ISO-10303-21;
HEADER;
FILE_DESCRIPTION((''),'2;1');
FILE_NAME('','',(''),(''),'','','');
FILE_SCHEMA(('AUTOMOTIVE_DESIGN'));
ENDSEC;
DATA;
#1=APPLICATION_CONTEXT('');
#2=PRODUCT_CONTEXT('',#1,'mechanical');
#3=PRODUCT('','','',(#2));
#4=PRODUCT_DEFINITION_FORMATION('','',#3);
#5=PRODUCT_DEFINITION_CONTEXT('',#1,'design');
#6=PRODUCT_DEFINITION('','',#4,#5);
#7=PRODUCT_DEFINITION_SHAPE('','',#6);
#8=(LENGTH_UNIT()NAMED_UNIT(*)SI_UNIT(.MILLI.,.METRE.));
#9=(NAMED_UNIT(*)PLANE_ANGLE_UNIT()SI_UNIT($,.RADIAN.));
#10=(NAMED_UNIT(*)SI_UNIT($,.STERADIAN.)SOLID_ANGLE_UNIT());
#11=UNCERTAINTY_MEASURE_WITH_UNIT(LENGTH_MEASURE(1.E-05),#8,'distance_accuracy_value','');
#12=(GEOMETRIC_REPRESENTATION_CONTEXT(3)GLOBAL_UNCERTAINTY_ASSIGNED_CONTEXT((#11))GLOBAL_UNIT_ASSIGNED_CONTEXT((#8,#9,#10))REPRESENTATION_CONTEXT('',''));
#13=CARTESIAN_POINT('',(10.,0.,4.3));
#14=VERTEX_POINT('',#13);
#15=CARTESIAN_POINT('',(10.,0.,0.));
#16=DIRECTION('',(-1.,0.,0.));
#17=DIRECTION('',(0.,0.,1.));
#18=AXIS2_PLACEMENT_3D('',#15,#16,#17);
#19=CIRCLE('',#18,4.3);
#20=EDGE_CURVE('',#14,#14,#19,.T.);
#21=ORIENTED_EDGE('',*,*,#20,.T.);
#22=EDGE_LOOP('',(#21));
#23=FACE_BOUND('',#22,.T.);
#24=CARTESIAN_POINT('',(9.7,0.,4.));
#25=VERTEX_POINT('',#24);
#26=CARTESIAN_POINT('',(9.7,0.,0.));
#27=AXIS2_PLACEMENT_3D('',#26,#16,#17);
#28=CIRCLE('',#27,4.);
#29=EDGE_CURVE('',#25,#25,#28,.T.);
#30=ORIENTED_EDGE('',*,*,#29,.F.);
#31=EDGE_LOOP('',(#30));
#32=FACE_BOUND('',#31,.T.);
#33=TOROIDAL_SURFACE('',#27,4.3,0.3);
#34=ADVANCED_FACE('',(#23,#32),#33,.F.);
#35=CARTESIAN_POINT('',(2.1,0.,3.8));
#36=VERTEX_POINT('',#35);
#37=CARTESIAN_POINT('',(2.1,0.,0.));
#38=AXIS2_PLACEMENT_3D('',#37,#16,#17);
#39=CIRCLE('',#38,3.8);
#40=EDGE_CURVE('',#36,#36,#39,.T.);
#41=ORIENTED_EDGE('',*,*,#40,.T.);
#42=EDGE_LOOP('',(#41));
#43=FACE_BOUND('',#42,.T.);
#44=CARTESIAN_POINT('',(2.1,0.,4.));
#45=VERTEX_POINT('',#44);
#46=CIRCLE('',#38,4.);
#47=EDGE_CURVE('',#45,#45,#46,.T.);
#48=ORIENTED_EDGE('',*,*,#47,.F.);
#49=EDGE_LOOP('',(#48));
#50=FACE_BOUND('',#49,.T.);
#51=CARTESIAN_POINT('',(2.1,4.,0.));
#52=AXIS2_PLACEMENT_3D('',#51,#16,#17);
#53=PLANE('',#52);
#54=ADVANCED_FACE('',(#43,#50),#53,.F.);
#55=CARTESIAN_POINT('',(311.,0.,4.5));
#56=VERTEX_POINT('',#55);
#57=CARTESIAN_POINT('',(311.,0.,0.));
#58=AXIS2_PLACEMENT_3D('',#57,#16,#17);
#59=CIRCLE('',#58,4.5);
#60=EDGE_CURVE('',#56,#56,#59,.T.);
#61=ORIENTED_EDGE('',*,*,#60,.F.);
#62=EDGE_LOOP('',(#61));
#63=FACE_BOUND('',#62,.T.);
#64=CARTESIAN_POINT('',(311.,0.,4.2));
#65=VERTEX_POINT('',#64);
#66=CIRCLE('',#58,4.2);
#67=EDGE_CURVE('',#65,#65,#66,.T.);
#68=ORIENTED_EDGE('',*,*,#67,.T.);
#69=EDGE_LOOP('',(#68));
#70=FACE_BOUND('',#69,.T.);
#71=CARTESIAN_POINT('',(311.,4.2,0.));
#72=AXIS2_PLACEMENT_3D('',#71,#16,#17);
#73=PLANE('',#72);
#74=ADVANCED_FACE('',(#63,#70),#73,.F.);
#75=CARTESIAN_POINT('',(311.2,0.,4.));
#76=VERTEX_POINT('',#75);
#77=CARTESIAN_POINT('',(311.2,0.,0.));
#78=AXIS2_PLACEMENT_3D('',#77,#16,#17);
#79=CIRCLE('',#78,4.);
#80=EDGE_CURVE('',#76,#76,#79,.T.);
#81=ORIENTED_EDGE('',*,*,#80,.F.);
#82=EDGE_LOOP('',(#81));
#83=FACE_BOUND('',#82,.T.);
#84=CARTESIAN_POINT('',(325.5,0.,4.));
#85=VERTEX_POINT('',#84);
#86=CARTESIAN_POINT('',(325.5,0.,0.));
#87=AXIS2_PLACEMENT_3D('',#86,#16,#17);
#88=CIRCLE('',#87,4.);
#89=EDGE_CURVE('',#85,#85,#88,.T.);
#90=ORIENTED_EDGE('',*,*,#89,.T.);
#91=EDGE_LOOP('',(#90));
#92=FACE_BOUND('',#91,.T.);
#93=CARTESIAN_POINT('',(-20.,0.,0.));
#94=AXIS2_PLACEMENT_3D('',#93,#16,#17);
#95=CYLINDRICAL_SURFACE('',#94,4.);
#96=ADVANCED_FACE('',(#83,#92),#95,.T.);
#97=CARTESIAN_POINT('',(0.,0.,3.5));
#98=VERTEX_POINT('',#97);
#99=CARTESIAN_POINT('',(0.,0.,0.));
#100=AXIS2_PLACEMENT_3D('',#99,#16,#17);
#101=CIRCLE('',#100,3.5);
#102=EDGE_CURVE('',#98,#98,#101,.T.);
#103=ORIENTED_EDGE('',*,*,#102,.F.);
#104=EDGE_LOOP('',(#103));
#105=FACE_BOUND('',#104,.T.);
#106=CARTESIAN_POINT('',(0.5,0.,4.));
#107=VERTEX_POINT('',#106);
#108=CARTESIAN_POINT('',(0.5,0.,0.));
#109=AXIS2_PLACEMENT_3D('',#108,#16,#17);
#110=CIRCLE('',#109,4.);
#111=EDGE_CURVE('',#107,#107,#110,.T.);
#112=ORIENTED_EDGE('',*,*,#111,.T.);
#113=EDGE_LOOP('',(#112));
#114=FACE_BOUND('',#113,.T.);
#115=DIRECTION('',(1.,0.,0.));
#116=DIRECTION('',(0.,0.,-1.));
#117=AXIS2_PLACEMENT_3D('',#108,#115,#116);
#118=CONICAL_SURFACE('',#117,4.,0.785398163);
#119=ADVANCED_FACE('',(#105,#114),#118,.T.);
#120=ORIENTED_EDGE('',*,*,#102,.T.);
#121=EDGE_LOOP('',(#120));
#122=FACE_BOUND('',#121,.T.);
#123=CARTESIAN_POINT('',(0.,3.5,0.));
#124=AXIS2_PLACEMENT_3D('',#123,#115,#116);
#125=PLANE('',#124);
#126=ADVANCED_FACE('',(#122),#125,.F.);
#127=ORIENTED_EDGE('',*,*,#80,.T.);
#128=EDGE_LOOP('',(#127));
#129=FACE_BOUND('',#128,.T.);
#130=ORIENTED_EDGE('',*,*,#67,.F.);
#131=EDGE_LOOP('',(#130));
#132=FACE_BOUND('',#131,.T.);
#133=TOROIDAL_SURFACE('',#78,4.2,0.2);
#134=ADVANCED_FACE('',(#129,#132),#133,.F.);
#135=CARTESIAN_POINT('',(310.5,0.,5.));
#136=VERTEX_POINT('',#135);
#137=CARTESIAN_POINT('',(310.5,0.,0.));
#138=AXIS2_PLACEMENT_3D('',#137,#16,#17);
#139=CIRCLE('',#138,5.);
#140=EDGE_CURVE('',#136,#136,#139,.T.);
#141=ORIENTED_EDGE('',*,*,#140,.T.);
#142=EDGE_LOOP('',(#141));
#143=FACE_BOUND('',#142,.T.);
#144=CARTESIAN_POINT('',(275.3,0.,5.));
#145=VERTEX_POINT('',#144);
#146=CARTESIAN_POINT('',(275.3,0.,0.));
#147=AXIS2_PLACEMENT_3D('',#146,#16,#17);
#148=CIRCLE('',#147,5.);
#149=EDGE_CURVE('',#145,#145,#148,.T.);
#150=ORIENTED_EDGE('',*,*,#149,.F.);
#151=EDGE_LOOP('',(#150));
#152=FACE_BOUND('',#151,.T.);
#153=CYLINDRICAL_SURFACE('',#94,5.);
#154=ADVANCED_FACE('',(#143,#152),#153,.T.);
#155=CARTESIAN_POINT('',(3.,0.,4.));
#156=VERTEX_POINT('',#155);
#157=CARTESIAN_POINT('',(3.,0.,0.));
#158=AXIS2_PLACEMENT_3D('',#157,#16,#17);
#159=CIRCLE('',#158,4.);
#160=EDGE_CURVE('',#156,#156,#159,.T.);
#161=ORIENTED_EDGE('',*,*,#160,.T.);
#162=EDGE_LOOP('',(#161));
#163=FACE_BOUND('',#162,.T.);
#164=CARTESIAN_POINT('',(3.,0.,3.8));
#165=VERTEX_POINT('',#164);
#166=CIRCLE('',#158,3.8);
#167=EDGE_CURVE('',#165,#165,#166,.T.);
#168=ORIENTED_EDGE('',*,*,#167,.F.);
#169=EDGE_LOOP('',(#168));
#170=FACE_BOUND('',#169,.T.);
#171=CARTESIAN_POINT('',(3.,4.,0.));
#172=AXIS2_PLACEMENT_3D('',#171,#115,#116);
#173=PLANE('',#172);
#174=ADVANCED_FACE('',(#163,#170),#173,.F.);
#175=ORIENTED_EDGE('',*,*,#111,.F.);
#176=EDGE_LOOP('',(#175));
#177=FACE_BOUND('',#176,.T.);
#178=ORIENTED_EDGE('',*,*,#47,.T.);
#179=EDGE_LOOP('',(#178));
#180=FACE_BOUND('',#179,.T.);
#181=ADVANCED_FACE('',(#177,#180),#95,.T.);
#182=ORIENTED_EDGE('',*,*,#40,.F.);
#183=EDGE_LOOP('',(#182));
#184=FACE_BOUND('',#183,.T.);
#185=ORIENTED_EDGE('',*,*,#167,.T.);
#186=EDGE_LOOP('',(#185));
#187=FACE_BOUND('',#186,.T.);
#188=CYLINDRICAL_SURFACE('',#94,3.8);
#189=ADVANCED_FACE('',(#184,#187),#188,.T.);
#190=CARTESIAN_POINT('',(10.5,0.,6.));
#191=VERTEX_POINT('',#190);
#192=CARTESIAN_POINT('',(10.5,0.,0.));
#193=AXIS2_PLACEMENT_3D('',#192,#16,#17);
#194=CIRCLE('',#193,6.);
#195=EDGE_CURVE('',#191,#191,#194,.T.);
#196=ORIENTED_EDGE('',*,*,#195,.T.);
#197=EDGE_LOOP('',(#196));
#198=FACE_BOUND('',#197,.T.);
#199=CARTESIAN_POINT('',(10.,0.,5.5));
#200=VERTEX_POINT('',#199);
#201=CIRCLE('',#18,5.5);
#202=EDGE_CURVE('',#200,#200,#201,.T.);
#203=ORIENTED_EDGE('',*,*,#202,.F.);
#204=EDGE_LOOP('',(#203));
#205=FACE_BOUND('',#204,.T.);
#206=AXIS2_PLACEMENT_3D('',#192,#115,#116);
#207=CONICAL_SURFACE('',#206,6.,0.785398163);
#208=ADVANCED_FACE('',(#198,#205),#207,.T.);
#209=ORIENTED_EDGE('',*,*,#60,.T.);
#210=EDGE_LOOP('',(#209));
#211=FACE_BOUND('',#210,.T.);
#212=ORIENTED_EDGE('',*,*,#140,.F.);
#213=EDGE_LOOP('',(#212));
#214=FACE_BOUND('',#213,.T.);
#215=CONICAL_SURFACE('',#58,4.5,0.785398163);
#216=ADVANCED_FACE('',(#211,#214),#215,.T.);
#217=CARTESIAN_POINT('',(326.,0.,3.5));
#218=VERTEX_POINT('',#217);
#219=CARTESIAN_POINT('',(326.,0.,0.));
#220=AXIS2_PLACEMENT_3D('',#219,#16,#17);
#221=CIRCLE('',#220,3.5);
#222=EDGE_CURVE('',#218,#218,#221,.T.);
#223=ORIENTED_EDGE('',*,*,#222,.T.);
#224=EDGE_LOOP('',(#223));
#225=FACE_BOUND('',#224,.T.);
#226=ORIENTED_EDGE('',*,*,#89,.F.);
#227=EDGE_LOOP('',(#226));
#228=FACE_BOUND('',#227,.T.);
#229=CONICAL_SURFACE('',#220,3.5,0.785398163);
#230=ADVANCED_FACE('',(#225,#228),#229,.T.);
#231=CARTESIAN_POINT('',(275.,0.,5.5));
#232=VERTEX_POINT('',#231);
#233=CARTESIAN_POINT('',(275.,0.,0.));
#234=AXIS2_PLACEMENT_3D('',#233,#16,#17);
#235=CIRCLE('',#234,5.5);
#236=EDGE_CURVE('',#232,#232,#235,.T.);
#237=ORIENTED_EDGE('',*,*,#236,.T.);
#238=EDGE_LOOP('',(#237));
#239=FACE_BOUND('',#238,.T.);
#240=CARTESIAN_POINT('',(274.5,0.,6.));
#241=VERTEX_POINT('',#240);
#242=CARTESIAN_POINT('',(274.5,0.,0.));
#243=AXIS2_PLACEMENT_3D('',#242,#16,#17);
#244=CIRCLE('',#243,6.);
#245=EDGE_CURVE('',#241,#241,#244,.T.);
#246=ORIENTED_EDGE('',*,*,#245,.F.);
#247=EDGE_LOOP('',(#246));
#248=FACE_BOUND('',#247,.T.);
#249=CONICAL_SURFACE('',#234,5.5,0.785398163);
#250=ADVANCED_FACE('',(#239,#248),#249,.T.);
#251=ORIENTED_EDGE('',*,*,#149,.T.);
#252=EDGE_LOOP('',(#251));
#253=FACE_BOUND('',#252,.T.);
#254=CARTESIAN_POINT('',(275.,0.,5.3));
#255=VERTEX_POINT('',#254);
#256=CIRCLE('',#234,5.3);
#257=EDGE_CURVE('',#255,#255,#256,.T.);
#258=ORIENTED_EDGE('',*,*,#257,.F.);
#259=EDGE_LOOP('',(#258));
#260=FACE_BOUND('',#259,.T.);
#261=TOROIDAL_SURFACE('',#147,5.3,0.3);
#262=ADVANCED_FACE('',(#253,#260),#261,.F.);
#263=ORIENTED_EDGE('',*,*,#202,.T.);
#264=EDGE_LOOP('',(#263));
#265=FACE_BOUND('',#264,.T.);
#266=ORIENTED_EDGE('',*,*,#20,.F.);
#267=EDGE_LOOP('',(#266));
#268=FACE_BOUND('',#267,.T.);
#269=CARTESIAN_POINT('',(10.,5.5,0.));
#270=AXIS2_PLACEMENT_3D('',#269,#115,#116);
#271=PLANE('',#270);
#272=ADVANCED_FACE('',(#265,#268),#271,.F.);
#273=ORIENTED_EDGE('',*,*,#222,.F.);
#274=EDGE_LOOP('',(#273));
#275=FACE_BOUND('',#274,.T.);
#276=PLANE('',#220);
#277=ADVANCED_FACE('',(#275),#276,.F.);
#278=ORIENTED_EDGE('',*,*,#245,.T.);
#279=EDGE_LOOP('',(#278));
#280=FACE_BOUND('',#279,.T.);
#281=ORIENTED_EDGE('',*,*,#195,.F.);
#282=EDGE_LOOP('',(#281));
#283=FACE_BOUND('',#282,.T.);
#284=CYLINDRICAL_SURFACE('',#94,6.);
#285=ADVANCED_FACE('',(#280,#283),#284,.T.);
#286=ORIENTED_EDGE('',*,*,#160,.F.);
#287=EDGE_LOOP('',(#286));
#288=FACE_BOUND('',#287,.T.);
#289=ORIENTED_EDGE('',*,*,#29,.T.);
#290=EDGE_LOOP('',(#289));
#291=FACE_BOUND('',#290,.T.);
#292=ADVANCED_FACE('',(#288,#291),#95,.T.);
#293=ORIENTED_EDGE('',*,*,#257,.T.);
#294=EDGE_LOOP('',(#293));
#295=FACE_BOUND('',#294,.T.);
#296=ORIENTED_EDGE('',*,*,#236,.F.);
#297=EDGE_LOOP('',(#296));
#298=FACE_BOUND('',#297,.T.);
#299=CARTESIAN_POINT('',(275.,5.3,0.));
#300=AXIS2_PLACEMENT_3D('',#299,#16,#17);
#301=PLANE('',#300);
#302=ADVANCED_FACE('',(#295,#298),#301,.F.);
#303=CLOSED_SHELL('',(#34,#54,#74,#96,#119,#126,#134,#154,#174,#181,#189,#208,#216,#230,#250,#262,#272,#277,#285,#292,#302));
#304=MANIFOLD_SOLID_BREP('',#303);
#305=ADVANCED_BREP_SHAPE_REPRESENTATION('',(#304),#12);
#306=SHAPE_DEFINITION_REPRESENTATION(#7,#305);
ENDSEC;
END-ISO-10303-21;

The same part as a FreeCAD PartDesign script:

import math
import FreeCAD as App
import Part
import Sketcher
from FreeCAD import Vector
Q = App.Units.Quantity

doc = App.newDocument("Part")
body = doc.addObject("PartDesign::Body", "Body")

# Sketch on XY plane
sketch1 = body.newObject("Sketcher::SketchObject", "Sketch")
sketch1.AttachmentSupport = (doc.getObject("XY_Plane"), [""])
sketch1.MapMode = "FlatFace"
sketch1.addGeometry(Part.LineSegment(Vector(2.1, 3.8, 0), Vector(2.1, 4, 0)), False)
sketch1.addGeometry(Part.LineSegment(Vector(2.1, 4, 0), Vector(0.5, 4, 0)), False)
sketch1.addGeometry(Part.LineSegment(Vector(0.5, 4, 0), Vector(0, 3.5, 0)), False)
sketch1.addGeometry(Part.LineSegment(Vector(0, 3.5, 0), Vector(0, 0, 0)), False)
sketch1.addGeometry(Part.LineSegment(Vector(0, 0, 0), Vector(326, 0, 0)), False)
sketch1.addGeometry(Part.LineSegment(Vector(326, 0, 0), Vector(326, 3.5, 0)), False)
sketch1.addGeometry(Part.LineSegment(Vector(326, 3.5, 0), Vector(325.5, 4, 0)), False)
sketch1.addGeometry(Part.LineSegment(Vector(325.5, 4, 0), Vector(311.2, 4, 0)), False)
sketch1.addGeometry(Part.ArcOfCircle(Part.Circle(Vector(311.2, 4.2, 0), Vector(0, 0, 1), 0.2), math.radians(-180), math.radians(-90)), False)
sketch1.addGeometry(Part.LineSegment(Vector(311, 4.2, 0), Vector(311, 4.5, 0)), False)
sketch1.addGeometry(Part.LineSegment(Vector(311, 4.5, 0), Vector(310.5, 5, 0)), False)
sketch1.addGeometry(Part.LineSegment(Vector(310.5, 5, 0), Vector(275.3, 5, 0)), False)
sketch1.addGeometry(Part.ArcOfCircle(Part.Circle(Vector(275.3, 5.3, 0), Vector(0, 0, 1), 0.3), math.radians(-180), math.radians(-90)), False)
sketch1.addGeometry(Part.LineSegment(Vector(275, 5.3, 0), Vector(275, 5.5, 0)), False)
sketch1.addGeometry(Part.LineSegment(Vector(275, 5.5, 0), Vector(274.5, 6, 0)), False)
sketch1.addGeometry(Part.LineSegment(Vector(274.5, 6, 0), Vector(10.5, 6, 0)), False)
sketch1.addGeometry(Part.LineSegment(Vector(10.5, 6, 0), Vector(10, 5.5, 0)), False)
sketch1.addGeometry(Part.LineSegment(Vector(10, 5.5, 0), Vector(10, 4.3, 0)), False)
sketch1.addGeometry(Part.ArcOfCircle(Part.Circle(Vector(9.7, 4.3, 0), Vector(0, 0, 1), 0.3), math.radians(-90), math.radians(0)), False)
sketch1.addGeometry(Part.LineSegment(Vector(9.7, 4, 0), Vector(3, 4, 0)), False)
sketch1.addGeometry(Part.LineSegment(Vector(3, 4, 0), Vector(3, 3.8, 0)), False)
sketch1.addGeometry(Part.LineSegment(Vector(3, 3.8, 0), Vector(2.1, 3.8, 0)), False)
sketch1.addConstraint(Sketcher.Constraint("Coincident", 0, 2, 1, 1))
sketch1.addConstraint(Sketcher.Constraint("Coincident", 1, 2, 2, 1))
sketch1.addConstraint(Sketcher.Constraint("Coincident", 2, 2, 3, 1))
sketch1.addConstraint(Sketcher.Constraint("Coincident", 3, 2, 4, 1))
sketch1.addConstraint(Sketcher.Constraint("Coincident", 4, 2, 5, 1))
sketch1.addConstraint(Sketcher.Constraint("Coincident", 5, 2, 6, 1))
sketch1.addConstraint(Sketcher.Constraint("Coincident", 6, 2, 7, 1))
sketch1.addConstraint(Sketcher.Constraint("Tangent", 7, 2, 8, 2))
sketch1.addConstraint(Sketcher.Constraint("Tangent", 8, 1, 9, 1))
sketch1.addConstraint(Sketcher.Constraint("Coincident", 9, 2, 10, 1))
sketch1.addConstraint(Sketcher.Constraint("Coincident", 10, 2, 11, 1))
sketch1.addConstraint(Sketcher.Constraint("Tangent", 11, 2, 12, 2))
sketch1.addConstraint(Sketcher.Constraint("Tangent", 12, 1, 13, 1))
sketch1.addConstraint(Sketcher.Constraint("Coincident", 13, 2, 14, 1))
sketch1.addConstraint(Sketcher.Constraint("Coincident", 14, 2, 15, 1))
sketch1.addConstraint(Sketcher.Constraint("Coincident", 15, 2, 16, 1))
sketch1.addConstraint(Sketcher.Constraint("Coincident", 16, 2, 17, 1))
sketch1.addConstraint(Sketcher.Constraint("Tangent", 17, 2, 18, 2))
sketch1.addConstraint(Sketcher.Constraint("Tangent", 18, 1, 19, 1))
sketch1.addConstraint(Sketcher.Constraint("Coincident", 19, 2, 20, 1))
sketch1.addConstraint(Sketcher.Constraint("Coincident", 20, 2, 21, 1))
sketch1.addConstraint(Sketcher.Constraint("Coincident", 21, 2, 0, 1))
sketch1.addConstraint(Sketcher.Constraint("Vertical", 0))
sketch1.addConstraint(Sketcher.Constraint("Horizontal", 1))
sketch1.addConstraint(Sketcher.Constraint("Vertical", 3))
sketch1.addConstraint(Sketcher.Constraint("Horizontal", 4))
sketch1.addConstraint(Sketcher.Constraint("Vertical", 5))
sketch1.addConstraint(Sketcher.Constraint("Horizontal", 7))
sketch1.addConstraint(Sketcher.Constraint("Vertical", 9))
sketch1.addConstraint(Sketcher.Constraint("Horizontal", 11))
sketch1.addConstraint(Sketcher.Constraint("Vertical", 13))
sketch1.addConstraint(Sketcher.Constraint("Horizontal", 15))
sketch1.addConstraint(Sketcher.Constraint("Vertical", 17))
sketch1.addConstraint(Sketcher.Constraint("Horizontal", 19))
sketch1.addConstraint(Sketcher.Constraint("Vertical", 20))
sketch1.addConstraint(Sketcher.Constraint("Horizontal", 21))
sketch1.addConstraint(Sketcher.Constraint("Coincident", 3, 2, -1, 1))
sketch1.addConstraint(Sketcher.Constraint("Equal", 12, 18))
sketch1.addConstraint(Sketcher.Constraint("Perpendicular", 2, 6))
sketch1.addConstraint(Sketcher.Constraint("Parallel", 6, 10))
sketch1.addConstraint(Sketcher.Constraint("Parallel", 10, 14))
sketch1.addConstraint(Sketcher.Constraint("Perpendicular", 14, 16))
sketch1.addConstraint(Sketcher.Constraint("Horizontal", 2, 2, 5, 2))
sketch1.addConstraint(Sketcher.Constraint("Horizontal", 1, 2, 6, 2))
sketch1.addConstraint(Sketcher.Constraint("Horizontal", 13, 2, 16, 2))
sketch1.addConstraint(Sketcher.Constraint("Horizontal", 7, 2, 18, 1))
sketch1.addConstraint(Sketcher.Constraint("Equal", 0, 13))
sketch1.addConstraint(Sketcher.Constraint("Equal", 2, 6))
sketch1.addConstraint(Sketcher.Constraint("Equal", 6, 10))
sketch1.addConstraint(Sketcher.Constraint("Equal", 10, 14))
sketch1.addConstraint(Sketcher.Constraint("Radius", 8, Q("0.2 mm")))
sketch1.addConstraint(Sketcher.Constraint("Radius", 12, Q("0.3 mm")))
sketch1.addConstraint(Sketcher.Constraint("DistanceX", 4, 1, 4, 2, Q("326 mm")))
sketch1.addConstraint(Sketcher.Constraint("DistanceX", 15, 2, 15, 1, Q("264 mm")))
sketch1.addConstraint(Sketcher.Constraint("DistanceX", 1, 2, 1, 1, Q("1.6 mm")))
sketch1.addConstraint(Sketcher.Constraint("DistanceX", 7, 2, 7, 1, Q("14.3 mm")))
sketch1.addConstraint(Sketcher.Constraint("DistanceX", 11, 2, 11, 1, Q("35.2 mm")))
sketch1.addConstraint(Sketcher.Constraint("DistanceX", 19, 2, 19, 1, Q("6.7 mm")))
sketch1.addConstraint(Sketcher.Constraint("DistanceX", 21, 2, 21, 1, Q("0.9 mm")))
sketch1.addConstraint(Sketcher.Constraint("DistanceY", 0, 1, 0, 2, Q("0.2 mm")))
sketch1.addConstraint(Sketcher.Constraint("DistanceY", 3, 2, 3, 1, Q("3.5 mm")))
sketch1.addConstraint(Sketcher.Constraint("DistanceY", 9, 1, 9, 2, Q("0.3 mm")))
revolution = body.newObject("PartDesign::Revolution", "Revolution")
revolution.Profile = sketch1
revolution.ReferenceAxis = (sketch1, ["H_Axis"])
revolution.Angle = 360

doc.recompute()
